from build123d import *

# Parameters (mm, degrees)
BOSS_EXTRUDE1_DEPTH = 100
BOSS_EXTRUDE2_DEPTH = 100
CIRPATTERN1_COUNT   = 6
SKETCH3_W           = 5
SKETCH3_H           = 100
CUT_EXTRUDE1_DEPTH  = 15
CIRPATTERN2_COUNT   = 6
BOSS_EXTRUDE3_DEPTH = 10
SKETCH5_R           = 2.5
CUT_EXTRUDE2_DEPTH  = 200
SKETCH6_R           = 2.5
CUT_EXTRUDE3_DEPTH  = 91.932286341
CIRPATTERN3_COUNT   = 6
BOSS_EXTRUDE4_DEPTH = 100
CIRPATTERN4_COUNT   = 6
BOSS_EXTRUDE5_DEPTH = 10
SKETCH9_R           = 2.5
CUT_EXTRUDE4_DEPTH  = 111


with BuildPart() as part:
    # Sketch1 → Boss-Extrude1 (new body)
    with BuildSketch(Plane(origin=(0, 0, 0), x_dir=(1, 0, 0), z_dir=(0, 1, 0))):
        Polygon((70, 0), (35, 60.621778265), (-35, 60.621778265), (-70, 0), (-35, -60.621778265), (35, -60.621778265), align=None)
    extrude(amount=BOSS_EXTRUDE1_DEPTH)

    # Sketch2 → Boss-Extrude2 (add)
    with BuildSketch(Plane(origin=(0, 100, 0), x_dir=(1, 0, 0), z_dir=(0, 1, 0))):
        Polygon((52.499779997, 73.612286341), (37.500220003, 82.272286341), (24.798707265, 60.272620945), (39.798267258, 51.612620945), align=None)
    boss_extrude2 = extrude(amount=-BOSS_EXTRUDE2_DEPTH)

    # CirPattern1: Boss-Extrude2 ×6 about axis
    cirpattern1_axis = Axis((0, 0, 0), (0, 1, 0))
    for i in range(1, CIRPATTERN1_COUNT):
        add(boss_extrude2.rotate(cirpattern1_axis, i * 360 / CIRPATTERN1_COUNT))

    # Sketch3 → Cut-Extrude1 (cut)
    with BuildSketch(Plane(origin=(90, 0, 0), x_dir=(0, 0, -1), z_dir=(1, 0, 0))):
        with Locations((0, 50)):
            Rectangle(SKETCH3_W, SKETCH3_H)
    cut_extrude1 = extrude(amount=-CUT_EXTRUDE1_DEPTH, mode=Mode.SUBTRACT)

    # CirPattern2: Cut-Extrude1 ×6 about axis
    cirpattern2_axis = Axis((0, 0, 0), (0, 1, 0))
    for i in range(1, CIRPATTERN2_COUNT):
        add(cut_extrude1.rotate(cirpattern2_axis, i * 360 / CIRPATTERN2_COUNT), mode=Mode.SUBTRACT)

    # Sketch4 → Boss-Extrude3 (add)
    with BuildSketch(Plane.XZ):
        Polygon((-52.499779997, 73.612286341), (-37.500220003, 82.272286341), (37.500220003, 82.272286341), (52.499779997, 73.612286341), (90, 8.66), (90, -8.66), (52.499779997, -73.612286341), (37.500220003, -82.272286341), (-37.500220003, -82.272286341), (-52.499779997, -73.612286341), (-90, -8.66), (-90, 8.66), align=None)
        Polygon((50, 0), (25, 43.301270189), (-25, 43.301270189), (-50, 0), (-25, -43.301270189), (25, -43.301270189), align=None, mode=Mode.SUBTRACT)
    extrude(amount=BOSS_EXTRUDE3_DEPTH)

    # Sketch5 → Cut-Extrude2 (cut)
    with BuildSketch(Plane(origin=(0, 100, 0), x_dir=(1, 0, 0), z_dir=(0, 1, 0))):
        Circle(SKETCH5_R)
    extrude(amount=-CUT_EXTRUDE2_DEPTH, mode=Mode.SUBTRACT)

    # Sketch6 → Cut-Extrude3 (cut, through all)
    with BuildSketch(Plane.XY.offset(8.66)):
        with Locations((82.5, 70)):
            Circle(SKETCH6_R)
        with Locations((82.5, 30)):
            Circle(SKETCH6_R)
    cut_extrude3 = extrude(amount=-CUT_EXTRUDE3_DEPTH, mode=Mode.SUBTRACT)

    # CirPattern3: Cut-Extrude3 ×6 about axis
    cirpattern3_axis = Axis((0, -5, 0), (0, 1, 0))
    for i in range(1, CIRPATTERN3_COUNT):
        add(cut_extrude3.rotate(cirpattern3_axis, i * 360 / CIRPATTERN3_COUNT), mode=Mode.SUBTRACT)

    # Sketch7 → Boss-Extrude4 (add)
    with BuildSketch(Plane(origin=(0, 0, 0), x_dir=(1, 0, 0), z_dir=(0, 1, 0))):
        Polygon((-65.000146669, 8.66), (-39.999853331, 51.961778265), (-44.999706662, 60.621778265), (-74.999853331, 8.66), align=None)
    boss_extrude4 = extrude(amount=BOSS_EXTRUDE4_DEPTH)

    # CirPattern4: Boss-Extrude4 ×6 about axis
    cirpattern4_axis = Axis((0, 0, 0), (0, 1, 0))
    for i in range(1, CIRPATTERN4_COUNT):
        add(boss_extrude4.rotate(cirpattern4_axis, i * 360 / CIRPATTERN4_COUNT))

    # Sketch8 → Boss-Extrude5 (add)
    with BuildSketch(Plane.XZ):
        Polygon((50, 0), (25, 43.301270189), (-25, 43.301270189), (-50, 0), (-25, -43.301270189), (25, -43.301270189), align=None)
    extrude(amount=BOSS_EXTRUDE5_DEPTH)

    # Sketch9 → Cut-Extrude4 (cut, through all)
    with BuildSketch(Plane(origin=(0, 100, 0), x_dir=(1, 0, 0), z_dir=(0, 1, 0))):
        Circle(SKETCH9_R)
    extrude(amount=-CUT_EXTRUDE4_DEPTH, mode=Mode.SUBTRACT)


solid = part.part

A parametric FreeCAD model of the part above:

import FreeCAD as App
import Part
import Sketcher
Q = App.Units.Quantity

doc = App.newDocument("Part")
params = doc.addObject("Spreadsheet::Sheet", "Params")
for row, (alias, value) in enumerate([
    ("sketch1_width", "70 mm"),
    ("sketch1_length", "70 mm"),
    ("pad1_length", "100 mm"),
    ("sketch2_length", "17.32 mm"),
    ("pad2_length", "100 mm"),
    ("sketch3_width", "100 mm"),
    ("sketch3_height", "5 mm"),
    ("pocket1_length", "15 mm"),
    ("sketch4_width", "50 mm"),
    ("sketch4_length", "50 mm"),
    ("sketch4_height", "17.32 mm"),
    ("sketch4_length2", "17.32 mm"),
    ("pad3_length", "10 mm"),
    ("sketch5_diameter", "5 mm"),
    ("pocket2_length", "200 mm"),
    ("sketch6_diameter", "5 mm"),
    ("pad4_length", "100 mm"),
    ("sketch8_width", "50 mm"),
    ("sketch8_length", "50 mm"),
    ("pad5_length", "10 mm"),
    ("sketch9_diameter", "5 mm"),
], start=1):
    params.set(f"A{row}", alias)
    params.set(f"B{row}", "=" + value)
    params.setAlias(f"B{row}", alias)

body = doc.addObject("PartDesign::Body", "Body")

# Sketch on XZ plane
sketch1 = body.newObject("Sketcher::SketchObject", "Sketch")
sketch1.AttachmentSupport = (doc.getObject("XZ_Plane"), [""])
sketch1.MapMode = "FlatFace"
sketch1.addGeometry([
    Part.LineSegment(App.Vector(70, 0, 0), App.Vector(35, -61, 0)),  # 0
    Part.LineSegment(App.Vector(35, -61, 0), App.Vector(-35, -61, 0)),  # 1
    Part.LineSegment(App.Vector(-35, -61, 0), App.Vector(-70, 0, 0)),  # 2
    Part.LineSegment(App.Vector(-70, 0, 0), App.Vector(-35, 61, 0)),  # 3
    Part.LineSegment(App.Vector(-35, 61, 0), App.Vector(35, 61, 0)),  # 4
    Part.LineSegment(App.Vector(35, 61, 0), App.Vector(70, 0, 0)),  # 5
], False)
sketch1.addConstraint([
    Sketcher.Constraint("Coincident", 0, 2, 1, 1),
    Sketcher.Constraint("Coincident", 1, 2, 2, 1),
    Sketcher.Constraint("Coincident", 2, 2, 3, 1),
    Sketcher.Constraint("Coincident", 3, 2, 4, 1),
    Sketcher.Constraint("Coincident", 4, 2, 5, 1),
    Sketcher.Constraint("Coincident", 5, 2, 0, 1),
    Sketcher.Constraint("Horizontal", 1),
    Sketcher.Constraint("Horizontal", 4),
    Sketcher.Constraint("Symmetric", 0, 2, 3, 2, -1, 1),
    Sketcher.Constraint("Symmetric", 2, 2, 5, 2, -1, 1),
    Sketcher.Constraint("PointOnObject", 2, 2, -1),
    Sketcher.Constraint("Parallel", 2, 5),
    Sketcher.Constraint("Vertical", 1, 2, 3, 2),
    Sketcher.Constraint("DistanceX", 1, 2, 1, 1, Q("70 mm")),
    Sketcher.Constraint("Angle", 0, Q("-120 deg")),
    Sketcher.Constraint("Distance", 0, Q("70 mm")),
])
sketch1.setExpression("Constraints[13]", "Params.sketch1_width")
sketch1.setExpression("Constraints[15]", "Params.sketch1_length")
pad1 = body.newObject("PartDesign::Pad", "Pad")
pad1.Profile = sketch1
pad1.setExpression("Length", "Params.pad1_length")
pad1.Reversed = True

# Sketch on XZ plane
sketch2 = body.newObject("Sketcher::SketchObject", "Sketch001")
sketch2.AttachmentSupport = (doc.getObject("XZ_Plane"), [""])
sketch2.MapMode = "FlatFace"
sketch2.AttachmentOffset = App.Placement(App.Vector(0, 0, -100), App.Rotation())
sketch2.addGeometry([
    Part.LineSegment(App.Vector(52, -74, 0), App.Vector(38, -82, 0)),
    Part.LineSegment(App.Vector(38, -82, 0), App.Vector(25, -60, 0)),
    Part.LineSegment(App.Vector(25, -60, 0), App.Vector(40, -52, 0)),
    Part.LineSegment(App.Vector(40, -52, 0), App.Vector(52, -74, 0)),
], False)
sketch2.addConstraint([
    Sketcher.Constraint("Coincident", 0, 2, 1, 1),
    Sketcher.Constraint("Coincident", 1, 2, 2, 1),
    Sketcher.Constraint("Coincident", 2, 2, 3, 1),
    Sketcher.Constraint("Coincident", 3, 2, 0, 1),
    Sketcher.Constraint("Perpendicular", 0, 1),
    Sketcher.Constraint("Perpendicular", 1, 2),
    Sketcher.Constraint("Perpendicular", 2, 3),
    Sketcher.Constraint("Angle", 0, Q("-150 deg")),
    Sketcher.Constraint("Distance", 0, Q("17.32 mm")),
    Sketcher.Constraint("DistanceX", -1, 1, 0, 2, Q("37.50022 mm")),
    Sketcher.Constraint("DistanceY", 1, 2, -1, 1, Q("60.272621 mm")),
    Sketcher.Constraint("Distance", 1, Q("25.403025 mm")),
])
sketch2.setExpression("Constraints[8]", "Params.sketch2_length")
pad2 = body.newObject("PartDesign::Pad", "Pad001")
pad2.Profile = sketch2
pad2.setExpression("Length", "Params.pad2_length")
doc.recompute()

polarpattern = body.newObject("PartDesign::PolarPattern", "PolarPattern")
polarpattern.Originals = [pad2]
polarpattern.Axis = (doc.getObject("Y_Axis"), [""])
polarpattern.Angle = 360
polarpattern.Occurrences = 6
body.Tip = polarpattern

# Sketch on YZ plane
sketch3 = body.newObject("Sketcher::SketchObject", "Sketch002")
sketch3.AttachmentSupport = (doc.getObject("YZ_Plane"), [""])
sketch3.MapMode = "FlatFace"
sketch3.AttachmentOffset = App.Placement(App.Vector(0, 0, 90), App.Rotation())
sketch3.addGeometry([
    Part.LineSegment(App.Vector(100, 2, 0), App.Vector(0, 2, 0)),
    Part.LineSegment(App.Vector(0, 2, 0), App.Vector(0, -2, 0)),
    Part.LineSegment(App.Vector(0, -2, 0), App.Vector(100, -2, 0)),
    Part.LineSegment(App.Vector(100, -2, 0), App.Vector(100, 2, 0)),
], False)
sketch3.addConstraint([
    Sketcher.Constraint("Coincident", 0, 2, 1, 1),
    Sketcher.Constraint("Coincident", 1, 2, 2, 1),
    Sketcher.Constraint("Coincident", 2, 2, 3, 1),
    Sketcher.Constraint("Coincident", 3, 2, 0, 1),
    Sketcher.Constraint("Horizontal", 0),
    Sketcher.Constraint("Vertical", 1),
    Sketcher.Constraint("Horizontal", 2),
    Sketcher.Constraint("Vertical", 3),
    Sketcher.Constraint("Symmetric", 0, 2, 1, 2, -1, 1),
    Sketcher.Constraint("DistanceX", 0, 2, 0, 1, Q("100 mm")),
    Sketcher.Constraint("DistanceY", 1, 2, 1, 1, Q("5 mm")),
])
sketch3.setExpression("Constraints[9]", "Params.sketch3_width")
sketch3.setExpression("Constraints[10]", "Params.sketch3_height")
pocket1 = body.newObject("PartDesign::Pocket", "Pocket")
pocket1.Profile = sketch3
pocket1.setExpression("Length", "Params.pocket1_length")
doc.recompute()

polarpattern2 = body.newObject("PartDesign::PolarPattern", "PolarPattern001")
polarpattern2.Originals = [pocket1]
polarpattern2.Axis = (doc.getObject("Y_Axis"), [""])
polarpattern2.Angle = 360
polarpattern2.Occurrences = 6
body.Tip = polarpattern2

# Sketch on XZ plane
sketch4 = body.newObject("Sketcher::SketchObject", "Sketch003")
sketch4.AttachmentSupport = (doc.getObject("XZ_Plane"), [""])
sketch4.MapMode = "FlatFace"
sketch4.addGeometry([
    Part.LineSegment(App.Vector(-38, 82, 0), App.Vector(-52, 74, 0)),  # 0
    Part.LineSegment(App.Vector(-52, 74, 0), App.Vector(-90, 9, 0)),  # 1
    Part.LineSegment(App.Vector(-90, 9, 0), App.Vector(-90, -9, 0)),  # 2
    Part.LineSegment(App.Vector(-90, -9, 0), App.Vector(-52, -74, 0)),  # 3
    Part.LineSegment(App.Vector(-52, -74, 0), App.Vector(-38, -82, 0)),  # 4
    Part.LineSegment(App.Vector(-38, -82, 0), App.Vector(38, -82, 0)),  # 5
    Part.LineSegment(App.Vector(38, -82, 0), App.Vector(52, -74, 0)),  # 6
    Part.LineSegment(App.Vector(52, -74, 0), App.Vector(90, -9, 0)),  # 7
    Part.LineSegment(App.Vector(90, -9, 0), App.Vector(90, 9, 0)),  # 8
    Part.LineSegment(App.Vector(90, 9, 0), App.Vector(52, 74, 0)),  # 9
    Part.LineSegment(App.Vector(52, 74, 0), App.Vector(38, 82, 0)),  # 10
    Part.LineSegment(App.Vector(38, 82, 0), App.Vector(-38, 82, 0)),  # 11
    Part.LineSegment(App.Vector(50, 0, 0), App.Vector(25, -43, 0)),  # 12
    Part.LineSegment(App.Vector(25, -43, 0), App.Vector(-25, -43, 0)),  # 13
    Part.LineSegment(App.Vector(-25, -43, 0), App.Vector(-50, 0, 0)),  # 14
    Part.LineSegment(App.Vector(-50, 0, 0), App.Vector(-25, 43, 0)),  # 15
    Part.LineSegment(App.Vector(-25, 43, 0), App.Vector(25, 43, 0)),  # 16
    Part.LineSegment(App.Vector(25, 43, 0), App.Vector(50, 0, 0)),  # 17
], False)
sketch4.addConstraint([
    Sketcher.Constraint("Coincident", 0, 2, 1, 1),
    Sketcher.Constraint("Coincident", 1, 2, 2, 1),
    Sketcher.Constraint("Coincident", 2, 2, 3, 1),
    Sketcher.Constraint("Coincident", 3, 2, 4, 1),
    Sketcher.Constraint("Coincident", 4, 2, 5, 1),
    Sketcher.Constraint("Coincident", 5, 2, 6, 1),
    Sketcher.Constraint("Coincident", 6, 2, 7, 1),
    Sketcher.Constraint("Coincident", 7, 2, 8, 1),
    Sketcher.Constraint("Coincident", 8, 2, 9, 1),
    Sketcher.Constraint("Coincident", 9, 2, 10, 1),
    Sketcher.Constraint("Coincident", 10, 2, 11, 1),
    Sketcher.Constraint("Coincident", 11, 2, 0, 1),
    Sketcher.Constraint("Coincident", 12, 2, 13, 1),
    Sketcher.Constraint("Coincident", 13, 2, 14, 1),
    Sketcher.Constraint("Coincident", 14, 2, 15, 1),
    Sketcher.Constraint("Coincident", 15, 2, 16, 1),
    Sketcher.Constraint("Coincident", 16, 2, 17, 1),
    Sketcher.Constraint("Coincident", 17, 2, 12, 1),
    Sketcher.Constraint("Vertical", 2),
    Sketcher.Constraint("Horizontal", 5),
    Sketcher.Constraint("Vertical", 8),
    Sketcher.Constraint("Horizontal", 11),
    Sketcher.Constraint("Horizontal", 13),
    Sketcher.Constraint("Horizontal", 16),
    Sketcher.Constraint("Symmetric", 0, 2, 6, 2, -1, 1),
    Sketcher.Constraint("Symmetric", 1, 2, 7, 2, -1, 1),
    Sketcher.Constraint("Symmetric", 3, 2, 9, 2, -1, 1),
    Sketcher.Constraint("Symmetric", 4, 2, 10, 2, -1, 1),
    Sketcher.Constraint("Symmetric", 12, 2, 15, 2, -1, 1),
    Sketcher.Constraint("Symmetric", 14, 2, 17, 2, -1, 1),
    Sketcher.Constraint("Symmetric", 3, 2, 6, 2, -2),
    Sketcher.Constraint("PointOnObject", 14, 2, -1),
    Sketcher.Constraint("Perpendicular", 0, 3),
    Sketcher.Constraint("Perpendicular", 1, 4),
    Sketcher.Constraint("Perpendicular", 3, 6),
    Sketcher.Constraint("Perpendicular", 6, 9),
    Sketcher.Constraint("Perpendicular", 10, 12),
    Sketcher.Constraint("Parallel", 9, 14),
    Sketcher.Constraint("Parallel", 14, 17),
    Sketcher.Constraint("Horizontal", 2, 2, 7, 2),
    Sketcher.Constraint("DistanceX", 13, 2, 13, 1, Q("50 mm")),
    Sketcher.Constraint("Angle", 0, Q("-150 deg")),
    Sketcher.Constraint("Distance", 12, Q("50 mm")),
    Sketcher.Constraint("DistanceX", 1, 2, -1, 1, Q("90 mm")),
    Sketcher.Constraint("DistanceX", 3, 2, 5, 2, Q("90 mm")),
    Sketcher.Constraint("DistanceY", 2, 2, 2, 1, Q("17.32 mm")),
    Sketcher.Constraint("Distance", 0, Q("17.32 mm")),
])
sketch4.setExpression("Constraints[40]", "Params.sketch4_width")
sketch4.setExpression("Constraints[42]", "Params.sketch4_length")
sketch4.setExpression("Constraints[45]", "Params.sketch4_height")
sketch4.setExpression("Constraints[46]", "Params.sketch4_length2")
pad3 = body.newObject("PartDesign::Pad", "Pad002")
pad3.Profile = sketch4
pad3.setExpression("Length", "Params.pad3_length")

# Sketch on XZ plane
sketch5 = body.newObject("Sketcher::SketchObject", "Sketch004")
sketch5.AttachmentSupport = (doc.getObject("XZ_Plane"), [""])
sketch5.MapMode = "FlatFace"
sketch5.AttachmentOffset = App.Placement(App.Vector(0, 0, -100), App.Rotation())
sketch5.addGeometry(Part.Circle(App.Vector(0, 0, 0), App.Vector(0, 0, 1), 2.5), False)
sketch5.addConstraint([
    Sketcher.Constraint("Coincident", 0, 3, -1, 1),
    Sketcher.Constraint("Diameter", 0, Q("5 mm")),
])
sketch5.setExpression("Constraints[1]", "Params.sketch5_diameter")
pocket2 = body.newObject("PartDesign::Pocket", "Pocket001")
pocket2.Profile = sketch5
pocket2.setExpression("Length", "Params.pocket2_length")
pocket2.Reversed = True

# Sketch on XY plane
sketch6 = body.newObject("Sketcher::SketchObject", "Sketch005")
sketch6.AttachmentSupport = (doc.getObject("XY_Plane"), [""])
sketch6.MapMode = "FlatFace"
sketch6.AttachmentOffset = App.Placement(App.Vector(0, 0, 8.66), App.Rotation())
sketch6.addGeometry([
    Part.Circle(App.Vector(82.5, 70, 0), App.Vector(0, 0, 1), 2.5),
    Part.Circle(App.Vector(82.5, 30, 0), App.Vector(0, 0, 1), 2.5),
], False)
sketch6.addConstraint([
    Sketcher.Constraint("Equal", 0, 1),
    Sketcher.Constraint("Vertical", 0, 3, 1, 3),
    Sketcher.Constraint("Diameter", 0, Q("5 mm")),
    Sketcher.Constraint("DistanceY", -1, 1, 0, 3, Q("70 mm")),
    Sketcher.Constraint("DistanceY", -1, 1, 1, 3, Q("30 mm")),
    Sketcher.Constraint("DistanceX", -1, 1, 0, 3, Q("82.5 mm")),
])
sketch6.setExpression("Constraints[2]", "Params.sketch6_diameter")
pocket3 = body.newObject("PartDesign::Pocket", "Pocket002")
pocket3.Profile = sketch6
pocket3.Type = "ThroughAll"
doc.recompute()

polarpattern3 = body.newObject("PartDesign::PolarPattern", "PolarPattern002")
polarpattern3.Originals = [pocket3]
polarpattern3.Axis = (doc.getObject("Y_Axis"), [""])
polarpattern3.Angle = 360
polarpattern3.Occurrences = 6
body.Tip = polarpattern3

# Sketch on XZ plane
sketch7 = body.newObject("Sketcher::SketchObject", "Sketch006")
sketch7.AttachmentSupport = (doc.getObject("XZ_Plane"), [""])
sketch7.MapMode = "FlatFace"
sketch7.addGeometry([
    Part.LineSegment(App.Vector(-65, -9, 0), App.Vector(-40, -52, 0)),
    Part.LineSegment(App.Vector(-40, -52, 0), App.Vector(-45, -61, 0)),
    Part.LineSegment(App.Vector(-45, -61, 0), App.Vector(-75, -9, 0)),
    Part.LineSegment(App.Vector(-75, -9, 0), App.Vector(-65, -9, 0)),
], False)
sketch7.addConstraint([
    Sketcher.Constraint("Coincident", 0, 2, 1, 1),
    Sketcher.Constraint("Coincident", 1, 2, 2, 1),
    Sketcher.Constraint("Coincident", 2, 2, 3, 1),
    Sketcher.Constraint("Coincident", 3, 2, 0, 1),
    Sketcher.Constraint("Horizontal", 3),
    Sketcher.Constraint("Parallel", 0, 2),
    Sketcher.Constraint("Angle", 0, Q("-60 deg")),
    Sketcher.Constraint("Angle", 1, Q("-120 deg")),
    Sketcher.Constraint("DistanceX", 2, 2, 0, 2, Q("35 mm")),
    Sketcher.Constraint("DistanceY", 2, 2, -1, 1, Q("8.66 mm")),
    Sketcher.Constraint("DistanceY", 1, 2, 0, 2, Q("8.66 mm")),
    Sketcher.Constraint("DistanceX", 0, 2, -1, 1, Q("39.999853 mm")),
])
pad4 = body.newObject("PartDesign::Pad", "Pad003")
pad4.Profile = sketch7
pad4.setExpression("Length", "Params.pad4_length")
pad4.Reversed = True
doc.recompute()

polarpattern4 = body.newObject("PartDesign::PolarPattern", "PolarPattern003")
polarpattern4.Originals = [pad4]
polarpattern4.Axis = (doc.getObject("Y_Axis"), [""])
polarpattern4.Angle = 360
polarpattern4.Occurrences = 6
body.Tip = polarpattern4

# Sketch on XZ plane
sketch8 = body.newObject("Sketcher::SketchObject", "Sketch007")
sketch8.AttachmentSupport = (doc.getObject("XZ_Plane"), [""])
sketch8.MapMode = "FlatFace"
sketch8.addGeometry([
    Part.LineSegment(App.Vector(50, 0, 0), App.Vector(25, 43, 0)),  # 0
    Part.LineSegment(App.Vector(25, 43, 0), App.Vector(-25, 43, 0)),  # 1
    Part.LineSegment(App.Vector(-25, 43, 0), App.Vector(-50, 0, 0)),  # 2
    Part.LineSegment(App.Vector(-50, 0, 0), App.Vector(-25, -43, 0)),  # 3
    Part.LineSegment(App.Vector(-25, -43, 0), App.Vector(25, -43, 0)),  # 4
    Part.LineSegment(App.Vector(25, -43, 0), App.Vector(50, 0, 0)),  # 5
], False)
sketch8.addConstraint([
    Sketcher.Constraint("Coincident", 0, 2, 1, 1),
    Sketcher.Constraint("Coincident", 1, 2, 2, 1),
    Sketcher.Constraint("Coincident", 2, 2, 3, 1),
    Sketcher.Constraint("Coincident", 3, 2, 4, 1),
    Sketcher.Constraint("Coincident", 4, 2, 5, 1),
    Sketcher.Constraint("Coincident", 5, 2, 0, 1),
    Sketcher.Constraint("Horizontal", 1),
    Sketcher.Constraint("Horizontal", 4),
    Sketcher.Constraint("Symmetric", 0, 2, 3, 2, -1, 1),
    Sketcher.Constraint("Symmetric", 2, 2, 5, 2, -1, 1),
    Sketcher.Constraint("PointOnObject", 2, 2, -1),
    Sketcher.Constraint("Parallel", 2, 5),
    Sketcher.Constraint("Vertical", 1, 2, 3, 2),
    Sketcher.Constraint("DistanceX", 1, 2, 1, 1, Q("50 mm")),
    Sketcher.Constraint("Angle", 0, Q("120 deg")),
    Sketcher.Constraint("Distance", 0, Q("50 mm")),
])
sketch8.setExpression("Constraints[13]", "Params.sketch8_width")
sketch8.setExpression("Constraints[15]", "Params.sketch8_length")
pad5 = body.newObject("PartDesign::Pad", "Pad004")
pad5.Profile = sketch8
pad5.setExpression("Length", "Params.pad5_length")

# Sketch on XZ plane
sketch9 = body.newObject("Sketcher::SketchObject", "Sketch008")
sketch9.AttachmentSupport = (doc.getObject("XZ_Plane"), [""])
sketch9.MapMode = "FlatFace"
sketch9.AttachmentOffset = App.Placement(App.Vector(0, 0, -100), App.Rotation())
sketch9.addGeometry(Part.Circle(App.Vector(0, 0, 0), App.Vector(0, 0, 1), 2.5), False)
sketch9.addConstraint([
    Sketcher.Constraint("Coincident", 0, 3, -1, 1),
    Sketcher.Constraint("Diameter", 0, Q("5 mm")),
])
sketch9.setExpression("Constraints[1]", "Params.sketch9_diameter")
pocket4 = body.newObject("PartDesign::Pocket", "Pocket003")
pocket4.Profile = sketch9
pocket4.Type = "ThroughAll"
pocket4.Reversed = True

doc.recompute()
